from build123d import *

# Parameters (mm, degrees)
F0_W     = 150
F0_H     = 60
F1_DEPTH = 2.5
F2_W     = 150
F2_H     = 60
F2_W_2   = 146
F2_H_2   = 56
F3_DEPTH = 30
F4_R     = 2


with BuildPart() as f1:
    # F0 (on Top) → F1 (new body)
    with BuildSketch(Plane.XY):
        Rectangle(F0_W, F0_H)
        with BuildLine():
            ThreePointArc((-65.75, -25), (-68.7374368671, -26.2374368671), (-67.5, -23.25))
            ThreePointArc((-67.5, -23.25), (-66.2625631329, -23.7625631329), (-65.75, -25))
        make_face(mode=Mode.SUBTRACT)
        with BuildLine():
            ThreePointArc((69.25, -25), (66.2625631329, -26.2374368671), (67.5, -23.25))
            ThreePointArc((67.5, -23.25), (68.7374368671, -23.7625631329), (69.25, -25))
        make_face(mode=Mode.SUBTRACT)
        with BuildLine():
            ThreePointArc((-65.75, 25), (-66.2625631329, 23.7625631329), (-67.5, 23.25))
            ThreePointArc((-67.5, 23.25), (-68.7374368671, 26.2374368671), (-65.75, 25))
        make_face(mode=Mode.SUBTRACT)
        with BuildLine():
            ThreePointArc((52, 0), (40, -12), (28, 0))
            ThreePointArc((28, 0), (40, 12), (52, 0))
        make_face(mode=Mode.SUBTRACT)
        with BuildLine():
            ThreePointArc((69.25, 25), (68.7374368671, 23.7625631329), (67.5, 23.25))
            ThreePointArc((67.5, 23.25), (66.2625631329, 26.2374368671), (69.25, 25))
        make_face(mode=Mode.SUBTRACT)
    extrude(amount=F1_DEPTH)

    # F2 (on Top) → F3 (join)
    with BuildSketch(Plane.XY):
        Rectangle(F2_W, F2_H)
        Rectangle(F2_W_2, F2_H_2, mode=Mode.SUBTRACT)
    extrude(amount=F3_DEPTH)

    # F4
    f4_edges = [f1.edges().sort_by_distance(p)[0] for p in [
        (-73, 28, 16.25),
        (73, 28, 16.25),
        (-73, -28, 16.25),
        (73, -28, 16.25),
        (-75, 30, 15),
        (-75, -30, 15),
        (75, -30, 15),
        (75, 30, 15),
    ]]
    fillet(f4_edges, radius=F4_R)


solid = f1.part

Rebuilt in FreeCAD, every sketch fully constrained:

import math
import FreeCAD as App
import Part
import Sketcher
from FreeCAD import Vector


def edges_at(feature, points):
    """Names of the edges that pass closest to the given points."""
    edges = feature.Shape.Edges
    near = lambda p: min(range(len(edges)), key=lambda i: edges[i].distToShape(Part.Vertex(*p))[0])
    return sorted({f"Edge{near(p) + 1}" for p in points})

doc = App.newDocument("Part")
body = doc.addObject("PartDesign::Body", "Body")

sketch1 = body.newObject("Sketcher::SketchObject", "Sketch")
sketch1.AttachmentSupport = (doc.getObject("XY_Plane"), [""])
sketch1.MapMode = "FlatFace"
sketch1.addGeometry([
    Part.LineSegment(Vector(-75, 30, 0), Vector(-75, -30, 0)),
    Part.LineSegment(Vector(-75, -30, 0), Vector(75, -30, 0)),
    Part.LineSegment(Vector(75, -30, 0), Vector(75, 30, 0)),
    Part.LineSegment(Vector(75, 30, 0), Vector(-75, 30, 0)),
    Part.ArcOfCircle(Part.Circle(Vector(-67.5, -25, 0), Vector(0, 0, 1), 1.8), math.radians(0), math.radians(90)),
    Part.ArcOfCircle(Part.Circle(Vector(-67.5, -25, 0), Vector(0, 0, 1), 1.8), math.radians(90), math.radians(360)),
    Part.ArcOfCircle(Part.Circle(Vector(67.5, -25, 0), Vector(0, 0, 1), 1.8), math.radians(0), math.radians(90)),
    Part.ArcOfCircle(Part.Circle(Vector(67.5, -25, 0), Vector(0, 0, 1), 1.8), math.radians(90), math.radians(360)),
    Part.Circle(Vector(40, 0, 0), Vector(0, 0, 1), 12),
    Part.ArcOfCircle(Part.Circle(Vector(-67.5, 25, 0), Vector(0, 0, 1), 1.8), math.radians(0), math.radians(270)),
    Part.ArcOfCircle(Part.Circle(Vector(-67.5, 25, 0), Vector(0, 0, 1), 1.8), math.radians(-90), math.radians(0)),
    Part.ArcOfCircle(Part.Circle(Vector(67.5, 25, 0), Vector(0, 0, 1), 1.8), math.radians(0), math.radians(270)),
    Part.ArcOfCircle(Part.Circle(Vector(67.5, 25, 0), Vector(0, 0, 1), 1.8), math.radians(-90), math.radians(0)),
], False)
sketch1.addConstraint([
    Sketcher.Constraint("Coincident", 0, 2, 1, 1),
    Sketcher.Constraint("Coincident", 1, 2, 2, 1),
    Sketcher.Constraint("Coincident", 2, 2, 3, 1),
    Sketcher.Constraint("Coincident", 3, 2, 0, 1),
    Sketcher.Constraint("Tangent", 4, 1, 5, 2),
    Sketcher.Constraint("Coincident", 5, 1, 4, 2),
    Sketcher.Constraint("Tangent", 6, 1, 7, 2),
    Sketcher.Constraint("Coincident", 7, 1, 6, 2),
    Sketcher.Constraint("Tangent", 9, 1, 10, 2),
    Sketcher.Constraint("Coincident", 10, 1, 9, 2),
    Sketcher.Constraint("Tangent", 11, 1, 12, 2),
    Sketcher.Constraint("Coincident", 12, 1, 11, 2),
    Sketcher.Constraint("Vertical", 0),
    Sketcher.Constraint("Horizontal", 1),
    Sketcher.Constraint("Vertical", 2),
    Sketcher.Constraint("Horizontal", 3),
    Sketcher.Constraint("Equal", 5, 6),
    Sketcher.Constraint("Equal", 7, 9),
    Sketcher.Constraint("Equal", 10, 11),
    Sketcher.Constraint("Symmetric", 6, 3, 9, 3, -1, 1),
    Sketcher.Constraint("Symmetric", 4, 3, 11, 3, -1, 1),
    Sketcher.Constraint("Symmetric", 0, 2, 2, 2, -1, 1),
    Sketcher.Constraint("Symmetric", 4, 3, 6, 3, -2),
    Sketcher.Constraint("PointOnObject", 8, 3, -1),
    Sketcher.Constraint("Horizontal", 7, 3, 4, 1),
    Sketcher.Constraint("Horizontal", 4, 1, 6, 1),
    Sketcher.Constraint("Horizontal", 12, 3, 9, 1),
    Sketcher.Constraint("Horizontal", 9, 1, 11, 1),
    Sketcher.Constraint("Vertical", 10, 3, 5, 1),
    Sketcher.Constraint("Vertical", 12, 3, 7, 1),
    Sketcher.Constraint("Vertical", 5, 1, 10, 1),
    Sketcher.Constraint("Vertical", 7, 1, 12, 1),
    Sketcher.Constraint("Diameter", 8, 24.0),
    Sketcher.Constraint("DistanceX", 1, 1, 1, 2, 150.0),
    Sketcher.Constraint("DistanceY", 0, 2, 0, 1, 60.0),
    Sketcher.Constraint("Radius", 4, 1.75),
    Sketcher.Constraint("DistanceY", 4, 3, -1, 1, 25.0),
    Sketcher.Constraint("DistanceX", -1, 1, 8, 3, 40.0),
    Sketcher.Constraint("DistanceX", 4, 3, 6, 3, 135.0),
])
pad1 = body.newObject("PartDesign::Pad", "Pad")
pad1.Profile = sketch1
pad1.Length = 2.5

sketch2 = body.newObject("Sketcher::SketchObject", "Sketch001")
sketch2.AttachmentSupport = (doc.getObject("XY_Plane"), [""])
sketch2.MapMode = "FlatFace"
sketch2.addGeometry([
    Part.LineSegment(Vector(-75, 30, 0), Vector(-75, -30, 0)),
    Part.LineSegment(Vector(-75, -30, 0), Vector(75, -30, 0)),
    Part.LineSegment(Vector(75, -30, 0), Vector(75, 30, 0)),
    Part.LineSegment(Vector(75, 30, 0), Vector(-75, 30, 0)),
    Part.LineSegment(Vector(73, -28, 0), Vector(-73, -28, 0)),
    Part.LineSegment(Vector(-73, -28, 0), Vector(-73, 28, 0)),
    Part.LineSegment(Vector(-73, 28, 0), Vector(73, 28, 0)),
    Part.LineSegment(Vector(73, 28, 0), Vector(73, -28, 0)),
], False)
sketch2.addConstraint([
    Sketcher.Constraint("Coincident", 0, 2, 1, 1),
    Sketcher.Constraint("Coincident", 1, 2, 2, 1),
    Sketcher.Constraint("Coincident", 2, 2, 3, 1),
    Sketcher.Constraint("Coincident", 3, 2, 0, 1),
    Sketcher.Constraint("Coincident", 4, 2, 5, 1),
    Sketcher.Constraint("Coincident", 5, 2, 6, 1),
    Sketcher.Constraint("Coincident", 6, 2, 7, 1),
    Sketcher.Constraint("Coincident", 7, 2, 4, 1),
    Sketcher.Constraint("Vertical", 0),
    Sketcher.Constraint("Horizontal", 1),
    Sketcher.Constraint("Vertical", 2),
    Sketcher.Constraint("Horizontal", 3),
    Sketcher.Constraint("Horizontal", 4),
    Sketcher.Constraint("Vertical", 5),
    Sketcher.Constraint("Horizontal", 6),
    Sketcher.Constraint("Vertical", 7),
    Sketcher.Constraint("Symmetric", 0, 2, 2, 2, -1, 1),
    Sketcher.Constraint("Symmetric", 4, 2, 6, 2, -1, 1),
    Sketcher.Constraint("DistanceX", 1, 1, 1, 2, 150.0),
    Sketcher.Constraint("DistanceX", 4, 2, 4, 1, 146.0),
    Sketcher.Constraint("DistanceY", 0, 2, 0, 1, 60.0),
    Sketcher.Constraint("DistanceY", 5, 1, 5, 2, 56.0),
])
pad2 = body.newObject("PartDesign::Pad", "Pad001")
pad2.Profile = sketch2
pad2.Length = 30
doc.recompute()

fillet = body.newObject("PartDesign::Fillet", "Fillet")
fillet.Base = (pad2, edges_at(pad2, [
    (-73, 28, 16.25),
    (73, 28, 16.25),
    (-73, -28, 16.25),
    (73, -28, 16.25),
    (-75, 30, 15),
    (-75, -30, 15),
    (75, -30, 15),
    (75, 30, 15),
]))
fillet.Radius = 2

doc.recompute()
